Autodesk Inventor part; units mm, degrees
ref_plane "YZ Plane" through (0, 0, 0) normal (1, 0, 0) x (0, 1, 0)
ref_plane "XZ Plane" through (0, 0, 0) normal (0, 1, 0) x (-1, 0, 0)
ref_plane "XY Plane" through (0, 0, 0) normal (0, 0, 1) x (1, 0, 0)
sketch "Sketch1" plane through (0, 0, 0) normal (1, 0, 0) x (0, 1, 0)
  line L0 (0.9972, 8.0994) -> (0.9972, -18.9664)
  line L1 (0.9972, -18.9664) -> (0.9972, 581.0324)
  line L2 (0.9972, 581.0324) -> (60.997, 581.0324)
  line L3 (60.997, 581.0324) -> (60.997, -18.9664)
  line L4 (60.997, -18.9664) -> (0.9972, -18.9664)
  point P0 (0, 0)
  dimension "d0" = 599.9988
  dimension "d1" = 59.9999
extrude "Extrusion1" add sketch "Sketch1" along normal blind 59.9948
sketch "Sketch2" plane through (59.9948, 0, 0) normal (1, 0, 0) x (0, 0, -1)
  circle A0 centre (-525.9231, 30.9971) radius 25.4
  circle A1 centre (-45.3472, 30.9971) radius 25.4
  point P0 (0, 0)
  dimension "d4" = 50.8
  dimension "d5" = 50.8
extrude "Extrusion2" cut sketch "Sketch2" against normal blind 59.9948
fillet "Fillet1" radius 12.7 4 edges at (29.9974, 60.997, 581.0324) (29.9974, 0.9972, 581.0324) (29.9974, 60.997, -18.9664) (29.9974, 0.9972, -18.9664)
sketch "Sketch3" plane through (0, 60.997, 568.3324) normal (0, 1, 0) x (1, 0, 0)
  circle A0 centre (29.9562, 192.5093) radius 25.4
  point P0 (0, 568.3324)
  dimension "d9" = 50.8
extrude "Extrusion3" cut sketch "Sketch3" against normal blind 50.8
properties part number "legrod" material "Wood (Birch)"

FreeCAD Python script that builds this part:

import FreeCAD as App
import Part
import Sketcher
Q = App.Units.Quantity


def edges_at(feature, points):
    """Names of the edges that pass closest to the given points."""
    edges = feature.Shape.Edges
    near = lambda p: min(range(len(edges)), key=lambda i: edges[i].distToShape(Part.Vertex(*p))[0])
    return sorted({f"Edge{near(p) + 1}" for p in points})


def add_polygon(sketch, points):
    """Adds a closed chain of lines whose ends are joined by coincident constraints."""
    first, n = sketch.GeometryCount, len(points)
    for a, b in zip(points, points[1:] + points[:1]):
        sketch.addGeometry(Part.LineSegment(App.Vector(*a, 0), App.Vector(*b, 0)), False)
    for i in range(n):
        sketch.addConstraint(Sketcher.Constraint("Coincident", first + i, 2, first + (i + 1) % n, 1))

doc = App.newDocument("Part")
body = doc.addObject("PartDesign::Body", "Body")

# Sketch on YZ plane
sketch1 = body.newObject("Sketcher::SketchObject", "Sketch")
sketch1.AttachmentSupport = (doc.getObject("YZ_Plane"), [""])
sketch1.MapMode = "FlatFace"
add_polygon(sketch1, [(0.9972, 581.0324), (0.9972, -18.9664), (60.997, -18.9664), (60.997, 581.0324)])  # lines 0-3
sketch1.addConstraint(Sketcher.Constraint("Vertical", 0))
sketch1.addConstraint(Sketcher.Constraint("Horizontal", 1))
sketch1.addConstraint(Sketcher.Constraint("Vertical", 2))
sketch1.addConstraint(Sketcher.Constraint("Horizontal", 3))
sketch1.addConstraint(Sketcher.Constraint("DistanceY", 0, 2, 0, 1, Q("23.622 in")))
sketch1.addConstraint(Sketcher.Constraint("DistanceX", 1, 1, 1, 2, Q("2.3622 in")))
sketch1.addConstraint(Sketcher.Constraint("DistanceY", 0, 2, -1, 1, Q("0.7467 in")))
sketch1.addConstraint(Sketcher.Constraint("DistanceX", -1, 1, 0, 2, Q("0.9972 mm")))
pad1 = body.newObject("PartDesign::Pad", "Pad")
pad1.Profile = sketch1
pad1.Length = Q("2.362 in")

# Sketch on YZ plane
sketch2 = body.newObject("Sketcher::SketchObject", "Sketch001")
sketch2.AttachmentSupport = (doc.getObject("YZ_Plane"), [""])
sketch2.MapMode = "FlatFace"
sketch2.AttachmentOffset = App.Placement(App.Vector(0, 0, 2.362 * 25.4), App.Rotation())
sketch2.addGeometry(Part.Circle(App.Vector(30.9971, 525.9231, 0), App.Vector(0, 0, 1), 25.4), False)
sketch2.addGeometry(Part.Circle(App.Vector(30.9971, 45.3472, 0), App.Vector(0, 0, 1), 25.4), False)
sketch2.addConstraint(Sketcher.Constraint("Equal", 0, 1))
sketch2.addConstraint(Sketcher.Constraint("Vertical", 0, 3, 1, 3))
sketch2.addConstraint(Sketcher.Constraint("Diameter", 0, Q("2 in")))
sketch2.addConstraint(Sketcher.Constraint("DistanceY", 1, 3, 0, 3, Q("18.9203 in")))
sketch2.addConstraint(Sketcher.Constraint("DistanceX", -1, 1, 0, 3, Q("30.997 mm")))
sketch2.addConstraint(Sketcher.Constraint("DistanceY", -1, 1, 0, 3, Q("525.923 mm")))
pocket1 = body.newObject("PartDesign::Pocket", "Pocket")
pocket1.Profile = sketch2
pocket1.Length = Q("2.362 in")
doc.recompute()

fillet = body.newObject("PartDesign::Fillet", "Fillet")
fillet.Base = (pocket1, edges_at(pocket1, [
    (29.997, 60.997, 581.032),
    (29.997, 0.997, 581.032),
    (29.997, 60.997, -18.966),
    (29.997, 0.997, -18.966),
]))
fillet.Radius = Q("0.5 in")

# Sketch on XZ plane
sketch3 = body.newObject("Sketcher::SketchObject", "Sketch002")
sketch3.AttachmentSupport = (doc.getObject("XZ_Plane"), [""])
sketch3.MapMode = "FlatFace"
sketch3.AttachmentOffset = App.Placement(App.Vector(0, 0, -60.997), App.Rotation())
sketch3.addGeometry(Part.Circle(App.Vector(29.9562, 375.8231, 0), App.Vector(0, 0, 1), 25.4), False)
sketch3.addConstraint(Sketcher.Constraint("Diameter", 0, Q("2 in")))
sketch3.addConstraint(Sketcher.Constraint("DistanceX", -1, 1, 0, 3, Q("29.9562 mm")))
sketch3.addConstraint(Sketcher.Constraint("DistanceY", -1, 1, 0, 3, Q("375.823 mm")))
pocket2 = body.newObject("PartDesign::Pocket", "Pocket001")
pocket2.Profile = sketch3
pocket2.Length = Q("2 in")
pocket2.Reversed = True

doc.recompute()
